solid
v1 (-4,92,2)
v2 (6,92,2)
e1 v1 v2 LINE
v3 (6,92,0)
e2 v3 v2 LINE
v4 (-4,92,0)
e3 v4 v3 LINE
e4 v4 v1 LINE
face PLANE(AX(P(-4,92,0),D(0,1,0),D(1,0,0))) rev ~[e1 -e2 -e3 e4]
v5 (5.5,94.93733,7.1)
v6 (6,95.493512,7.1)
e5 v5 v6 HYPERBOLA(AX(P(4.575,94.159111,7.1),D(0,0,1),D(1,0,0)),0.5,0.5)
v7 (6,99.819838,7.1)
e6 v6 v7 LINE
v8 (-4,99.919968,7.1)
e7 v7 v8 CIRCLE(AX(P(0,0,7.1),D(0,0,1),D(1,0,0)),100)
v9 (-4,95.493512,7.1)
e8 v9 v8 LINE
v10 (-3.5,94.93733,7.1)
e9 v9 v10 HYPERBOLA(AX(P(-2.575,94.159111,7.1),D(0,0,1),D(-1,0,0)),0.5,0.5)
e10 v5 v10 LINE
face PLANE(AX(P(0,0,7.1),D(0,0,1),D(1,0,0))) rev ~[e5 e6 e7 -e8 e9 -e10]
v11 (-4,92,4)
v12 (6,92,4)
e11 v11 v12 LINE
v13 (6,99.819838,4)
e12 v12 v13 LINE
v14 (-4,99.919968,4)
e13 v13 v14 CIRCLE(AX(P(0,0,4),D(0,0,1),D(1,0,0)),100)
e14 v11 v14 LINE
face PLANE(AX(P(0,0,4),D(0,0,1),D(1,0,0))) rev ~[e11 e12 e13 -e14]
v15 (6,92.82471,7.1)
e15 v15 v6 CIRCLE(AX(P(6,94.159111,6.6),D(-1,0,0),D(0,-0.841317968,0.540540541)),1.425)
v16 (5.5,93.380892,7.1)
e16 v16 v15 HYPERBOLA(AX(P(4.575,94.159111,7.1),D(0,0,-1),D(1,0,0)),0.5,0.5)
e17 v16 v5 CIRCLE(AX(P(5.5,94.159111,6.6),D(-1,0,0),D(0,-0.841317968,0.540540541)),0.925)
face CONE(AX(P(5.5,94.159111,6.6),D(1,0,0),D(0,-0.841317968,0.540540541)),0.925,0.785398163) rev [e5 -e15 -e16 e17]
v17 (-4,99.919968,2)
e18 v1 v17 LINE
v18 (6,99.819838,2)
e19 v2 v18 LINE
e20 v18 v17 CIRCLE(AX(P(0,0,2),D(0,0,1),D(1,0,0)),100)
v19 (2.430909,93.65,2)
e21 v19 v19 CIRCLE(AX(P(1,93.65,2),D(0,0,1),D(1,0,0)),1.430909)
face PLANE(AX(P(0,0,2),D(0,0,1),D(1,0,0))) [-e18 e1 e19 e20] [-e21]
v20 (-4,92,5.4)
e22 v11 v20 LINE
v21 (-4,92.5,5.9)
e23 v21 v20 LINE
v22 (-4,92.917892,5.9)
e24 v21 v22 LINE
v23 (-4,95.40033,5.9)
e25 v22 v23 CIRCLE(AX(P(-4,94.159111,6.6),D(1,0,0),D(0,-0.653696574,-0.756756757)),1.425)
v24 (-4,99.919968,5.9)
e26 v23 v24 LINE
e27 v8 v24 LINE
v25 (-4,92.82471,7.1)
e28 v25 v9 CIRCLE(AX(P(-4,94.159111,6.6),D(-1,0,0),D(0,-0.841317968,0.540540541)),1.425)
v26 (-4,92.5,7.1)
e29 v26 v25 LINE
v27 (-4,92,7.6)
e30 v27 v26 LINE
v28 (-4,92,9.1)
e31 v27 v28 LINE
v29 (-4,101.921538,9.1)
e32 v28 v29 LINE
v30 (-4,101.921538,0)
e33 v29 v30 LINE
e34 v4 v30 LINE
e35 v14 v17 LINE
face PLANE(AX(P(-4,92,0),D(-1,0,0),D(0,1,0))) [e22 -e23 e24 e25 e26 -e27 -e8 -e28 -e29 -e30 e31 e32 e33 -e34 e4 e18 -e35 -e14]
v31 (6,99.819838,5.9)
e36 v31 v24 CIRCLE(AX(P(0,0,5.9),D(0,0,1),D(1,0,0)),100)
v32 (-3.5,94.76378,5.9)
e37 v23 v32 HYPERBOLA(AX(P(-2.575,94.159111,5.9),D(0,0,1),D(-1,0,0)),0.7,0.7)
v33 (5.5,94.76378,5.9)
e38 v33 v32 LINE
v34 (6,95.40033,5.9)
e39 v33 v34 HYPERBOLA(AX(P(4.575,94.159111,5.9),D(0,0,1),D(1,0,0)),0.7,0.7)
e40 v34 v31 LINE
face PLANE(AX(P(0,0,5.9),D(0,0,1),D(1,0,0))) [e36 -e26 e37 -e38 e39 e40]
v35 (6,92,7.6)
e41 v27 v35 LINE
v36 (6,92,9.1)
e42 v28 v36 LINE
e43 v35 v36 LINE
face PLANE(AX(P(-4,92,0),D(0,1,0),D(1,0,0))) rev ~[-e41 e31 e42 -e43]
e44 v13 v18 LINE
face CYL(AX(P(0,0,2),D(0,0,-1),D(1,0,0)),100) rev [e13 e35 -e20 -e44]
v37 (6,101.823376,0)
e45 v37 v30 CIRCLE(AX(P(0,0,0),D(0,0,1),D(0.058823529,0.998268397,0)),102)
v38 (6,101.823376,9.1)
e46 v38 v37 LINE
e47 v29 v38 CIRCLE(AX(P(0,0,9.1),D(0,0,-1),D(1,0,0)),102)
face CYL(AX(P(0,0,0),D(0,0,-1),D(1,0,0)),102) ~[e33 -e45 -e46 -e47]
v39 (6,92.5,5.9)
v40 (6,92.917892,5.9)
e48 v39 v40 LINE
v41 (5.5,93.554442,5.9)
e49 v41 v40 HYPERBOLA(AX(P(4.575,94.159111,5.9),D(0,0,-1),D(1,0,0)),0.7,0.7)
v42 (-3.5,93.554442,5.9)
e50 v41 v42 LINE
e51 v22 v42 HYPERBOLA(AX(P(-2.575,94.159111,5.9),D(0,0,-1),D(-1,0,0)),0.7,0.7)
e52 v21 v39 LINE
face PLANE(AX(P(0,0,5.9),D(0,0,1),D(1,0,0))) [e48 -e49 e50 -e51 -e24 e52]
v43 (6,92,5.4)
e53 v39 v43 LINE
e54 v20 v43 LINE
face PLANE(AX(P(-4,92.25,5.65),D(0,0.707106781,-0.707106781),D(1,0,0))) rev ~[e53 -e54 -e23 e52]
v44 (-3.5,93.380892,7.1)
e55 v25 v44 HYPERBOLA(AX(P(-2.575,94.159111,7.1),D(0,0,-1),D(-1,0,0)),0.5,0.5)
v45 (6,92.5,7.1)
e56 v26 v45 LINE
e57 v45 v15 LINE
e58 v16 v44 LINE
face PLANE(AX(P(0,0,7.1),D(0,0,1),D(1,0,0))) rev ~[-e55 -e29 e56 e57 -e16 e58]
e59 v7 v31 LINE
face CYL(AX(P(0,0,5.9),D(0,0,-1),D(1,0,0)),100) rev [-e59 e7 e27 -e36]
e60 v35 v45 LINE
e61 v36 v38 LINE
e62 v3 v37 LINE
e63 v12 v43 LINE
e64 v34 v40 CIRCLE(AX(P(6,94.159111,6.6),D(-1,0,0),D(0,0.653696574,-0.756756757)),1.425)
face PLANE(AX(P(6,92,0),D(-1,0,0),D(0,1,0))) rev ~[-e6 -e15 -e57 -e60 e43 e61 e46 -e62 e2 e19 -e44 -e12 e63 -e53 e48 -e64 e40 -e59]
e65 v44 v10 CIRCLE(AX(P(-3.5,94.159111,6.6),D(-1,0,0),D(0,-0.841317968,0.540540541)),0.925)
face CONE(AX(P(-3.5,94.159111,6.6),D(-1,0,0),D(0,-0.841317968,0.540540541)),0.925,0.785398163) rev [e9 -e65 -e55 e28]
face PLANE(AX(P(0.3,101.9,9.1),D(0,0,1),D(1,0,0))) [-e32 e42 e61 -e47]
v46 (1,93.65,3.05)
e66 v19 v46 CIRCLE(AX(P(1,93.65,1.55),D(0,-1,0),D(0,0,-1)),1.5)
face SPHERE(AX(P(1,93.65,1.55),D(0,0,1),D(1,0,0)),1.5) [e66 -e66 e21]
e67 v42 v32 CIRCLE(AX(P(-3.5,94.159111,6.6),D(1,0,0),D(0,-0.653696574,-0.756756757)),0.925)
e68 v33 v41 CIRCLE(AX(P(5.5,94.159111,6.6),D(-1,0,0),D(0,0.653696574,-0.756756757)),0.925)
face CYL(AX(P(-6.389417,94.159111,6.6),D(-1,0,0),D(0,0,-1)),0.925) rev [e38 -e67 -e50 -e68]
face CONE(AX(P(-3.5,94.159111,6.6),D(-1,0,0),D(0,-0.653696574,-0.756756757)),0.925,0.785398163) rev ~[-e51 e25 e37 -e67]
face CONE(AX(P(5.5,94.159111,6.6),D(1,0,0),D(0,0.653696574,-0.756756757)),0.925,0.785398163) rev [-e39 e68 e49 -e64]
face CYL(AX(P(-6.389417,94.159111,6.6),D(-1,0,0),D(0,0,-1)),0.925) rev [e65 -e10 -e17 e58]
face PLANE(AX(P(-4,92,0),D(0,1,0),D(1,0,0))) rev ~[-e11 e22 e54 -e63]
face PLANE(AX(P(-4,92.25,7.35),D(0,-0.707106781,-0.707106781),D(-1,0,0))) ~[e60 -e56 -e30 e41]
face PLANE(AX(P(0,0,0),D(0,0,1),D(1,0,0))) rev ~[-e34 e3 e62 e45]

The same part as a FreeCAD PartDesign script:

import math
import FreeCAD as App
import Part
import Sketcher
Q = App.Units.Quantity


def edges_at(feature, points):
    """Names of the edges that pass closest to the given points."""
    edges = feature.Shape.Edges
    near = lambda p: min(range(len(edges)), key=lambda i: edges[i].distToShape(Part.Vertex(*p))[0])
    return sorted({f"Edge{near(p) + 1}" for p in points})

doc = App.newDocument("Part")
body = doc.addObject("PartDesign::Body", "Body")

sketch1 = body.newObject("Sketcher::SketchObject", "Sketch")
sketch1.AttachmentSupport = (doc.getObject("XY_Plane"), [""])
sketch1.MapMode = "FlatFace"
sketch1.AttachmentOffset = App.Placement(App.Vector(0, 0, 9.1), App.Rotation())
sketch1.addGeometry(Part.LineSegment(App.Vector(-11, 115, 0), App.Vector(-11, 88, 0)), False)
sketch1.addGeometry(Part.LineSegment(App.Vector(-11, 88, 0), App.Vector(11, 88, 0)), False)
sketch1.addGeometry(Part.LineSegment(App.Vector(11, 88, 0), App.Vector(11, 115, 0)), False)
sketch1.addGeometry(Part.LineSegment(App.Vector(11, 115, 0), App.Vector(-11, 115, 0)), False)
sketch1.addConstraint(Sketcher.Constraint("Coincident", 0, 2, 1, 1))
sketch1.addConstraint(Sketcher.Constraint("Coincident", 1, 2, 2, 1))
sketch1.addConstraint(Sketcher.Constraint("Coincident", 2, 2, 3, 1))
sketch1.addConstraint(Sketcher.Constraint("Coincident", 3, 2, 0, 1))
sketch1.addConstraint(Sketcher.Constraint("Vertical", 0))
sketch1.addConstraint(Sketcher.Constraint("Horizontal", 1))
sketch1.addConstraint(Sketcher.Constraint("Vertical", 2))
sketch1.addConstraint(Sketcher.Constraint("Horizontal", 3))
sketch1.addConstraint(Sketcher.Constraint("DistanceX", 1, 1, 1, 2, Q("22 mm")))
sketch1.addConstraint(Sketcher.Constraint("DistanceY", 0, 2, 0, 1, Q("27 mm")))
sketch1.addConstraint(Sketcher.Constraint("DistanceX", 0, 2, -1, 1, Q("10.7 mm")))
sketch1.addConstraint(Sketcher.Constraint("DistanceY", -1, 1, 0, 2, Q("88.4 mm")))
pad1 = body.newObject("PartDesign::Pad", "Pad")
pad1.Profile = sketch1
pad1.Length = 10
body2 = doc.addObject("PartDesign::Body", "Body001")

sketch2 = body2.newObject("Sketcher::SketchObject", "Sketch001")
sketch2.AttachmentSupport = (doc.getObject("YZ_Plane001"), [""])
sketch2.MapMode = "FlatFace"
sketch2.AttachmentOffset = App.Placement(App.Vector(0, 0, -6.389417), App.Rotation())
sketch2.addGeometry(Part.Circle(App.Vector(94.2, 6.6, 0), App.Vector(0, 0, 1), 0.9), False)
sketch2.addConstraint(Sketcher.Constraint("Diameter", 0, Q("1.85 mm")))
sketch2.addConstraint(Sketcher.Constraint("DistanceY", -1, 1, 0, 3, Q("6.6 mm")))
sketch2.addConstraint(Sketcher.Constraint("DistanceX", -1, 1, 0, 3, Q("94.159111 mm")))
pad2 = body2.newObject("PartDesign::Pad", "Pad001")
pad2.Profile = sketch2
pad2.Length = 21
body3 = doc.addObject("PartDesign::Body", "Body002")

sketch3 = body3.newObject("Sketcher::SketchObject", "Sketch002")
sketch3.AttachmentSupport = (doc.getObject("XY_Plane002"), [""])
sketch3.MapMode = "FlatFace"
sketch3.AttachmentOffset = App.Placement(App.Vector(0, 0, 5.9), App.Rotation())
sketch3.addGeometry(Part.Circle(App.Vector(0, 0, 0), App.Vector(0, 0, 1), 100), False)
sketch3.addConstraint(Sketcher.Constraint("Coincident", 0, 3, -1, 1))
sketch3.addConstraint(Sketcher.Constraint("Diameter", 0, Q("200 mm")))
pad3 = body3.newObject("PartDesign::Pad", "Pad002")
pad3.Profile = sketch3
pad3.Length = 1.2
body4 = doc.addObject("PartDesign::Body", "Body003")

sketch4 = body4.newObject("Sketcher::SketchObject", "Sketch003")
sketch4.AttachmentSupport = (doc.getObject("XY_Plane003"), [""])
sketch4.MapMode = "FlatFace"
sketch4.AttachmentOffset = App.Placement(App.Vector(0, 0, 2), App.Rotation())
sketch4.addGeometry(Part.Circle(App.Vector(0, 0, 0), App.Vector(0, 0, 1), 100), False)
sketch4.addConstraint(Sketcher.Constraint("Coincident", 0, 3, -1, 1))
sketch4.addConstraint(Sketcher.Constraint("Diameter", 0, Q("200 mm")))
pad4 = body4.newObject("PartDesign::Pad", "Pad003")
pad4.Profile = sketch4
pad4.Length = 2
body5 = doc.addObject("PartDesign::Body", "Body004")

sketch5 = body5.newObject("Sketcher::SketchObject", "Sketch004")
sketch5.AttachmentSupport = (doc.getObject("XY_Plane004"), [""])
sketch5.MapMode = "FlatFace"
sketch5.addGeometry(Part.LineSegment(App.Vector(-4, 102, 0), App.Vector(-4, 92, 0)), False)
sketch5.addGeometry(Part.LineSegment(App.Vector(-4, 92, 0), App.Vector(6, 92, 0)), False)
sketch5.addGeometry(Part.LineSegment(App.Vector(6, 92, 0), App.Vector(6, 102, 0)), False)
sketch5.addGeometry(Part.LineSegment(App.Vector(6, 102, 0), App.Vector(-4, 102, 0)), False)
sketch5.addConstraint(Sketcher.Constraint("Coincident", 0, 2, 1, 1))
sketch5.addConstraint(Sketcher.Constraint("Coincident", 1, 2, 2, 1))
sketch5.addConstraint(Sketcher.Constraint("Coincident", 2, 2, 3, 1))
sketch5.addConstraint(Sketcher.Constraint("Coincident", 3, 2, 0, 1))
sketch5.addConstraint(Sketcher.Constraint("Vertical", 0))
sketch5.addConstraint(Sketcher.Constraint("Horizontal", 1))
sketch5.addConstraint(Sketcher.Constraint("Vertical", 2))
sketch5.addConstraint(Sketcher.Constraint("Horizontal", 3))
sketch5.addConstraint(Sketcher.Constraint("Equal", 3, 0))
sketch5.addConstraint(Sketcher.Constraint("DistanceX", 1, 1, 1, 2, Q("10 mm")))
sketch5.addConstraint(Sketcher.Constraint("DistanceX", 0, 2, -1, 1, Q("4 mm")))
sketch5.addConstraint(Sketcher.Constraint("DistanceY", -1, 1, 0, 2, Q("92 mm")))
pad5 = body5.newObject("PartDesign::Pad", "Pad004")
pad5.Profile = sketch5
pad5.Length = 10
body6 = doc.addObject("PartDesign::Body", "Body005")

sketch6 = body6.newObject("Sketcher::SketchObject", "Sketch005")
sketch6.AttachmentSupport = (doc.getObject("XY_Plane005"), [""])
sketch6.MapMode = "FlatFace"
sketch6.addGeometry(Part.Circle(App.Vector(0, 0, 0), App.Vector(0, 0, 1), 102), False)
sketch6.addConstraint(Sketcher.Constraint("Coincident", 0, 3, -1, 1))
sketch6.addConstraint(Sketcher.Constraint("Diameter", 0, Q("204 mm")))
pad6 = body6.newObject("PartDesign::Pad", "Pad005")
pad6.Profile = sketch6
pad6.Length = 10
doc.recompute()

boolean = body6.newObject("PartDesign::Boolean", "Boolean")
boolean.Type = "Common"
boolean.addObjects([body5])
doc.recompute()

boolean2 = body6.newObject("PartDesign::Boolean", "Boolean001")
boolean2.Type = "Cut"
boolean2.addObjects([body4])
doc.recompute()

boolean3 = body6.newObject("PartDesign::Boolean", "Boolean002")
boolean3.Type = "Cut"
boolean3.addObjects([body3])
doc.recompute()

boolean4 = body6.newObject("PartDesign::Boolean", "Boolean003")
boolean4.Type = "Cut"
boolean4.addObjects([body2])
doc.recompute()

boolean5 = body6.newObject("PartDesign::Boolean", "Boolean004")
boolean5.Type = "Cut"
boolean5.addObjects([body])
doc.recompute()

chamfer = body6.newObject("PartDesign::Chamfer", "Chamfer")
chamfer.Base = (boolean5, edges_at(boolean5, [(1, 92, 7.1), (1, 92, 5.9)]))
chamfer.Size = 0.5
doc.recompute()

chamfer2 = body6.newObject("PartDesign::Chamfer", "Chamfer001")
chamfer2.Base = (chamfer, edges_at(chamfer, [
    (-4, 94.159, 5.675),
    (-4, 94.159, 5.675),
    (-4, 94.159, 7.525),
    (6, 94.159, 5.675),
    (6, 94.159, 5.675),
    (6, 94.159, 7.525),
]))
chamfer2.Size = 0.5
body7 = doc.addObject("PartDesign::Body", "Body006")

sketch7 = body7.newObject("Sketcher::SketchObject", "Sketch006")
sketch7.AttachmentSupport = (doc.getObject("XZ_Plane006"), [""])
sketch7.MapMode = "FlatFace"
sketch7.AttachmentOffset = App.Placement(App.Vector(0, 0, -93.65), App.Rotation())
sketch7.addGeometry(Part.ArcOfCircle(Part.Circle(App.Vector(1, 1.6, 0), App.Vector(0, 0, 1), 1.5), math.radians(-90), math.radians(90)), False)
sketch7.addGeometry(Part.LineSegment(App.Vector(1, 3, 0), App.Vector(1, 0.1, 0)), False)
sketch7.addGeometry(Part.LineSegment(App.Vector(1, 0.1, 0), App.Vector(1, 3, 0)), True)
sketch7.addConstraint(Sketcher.Constraint("Coincident", 0, 1, 1, 2))
sketch7.addConstraint(Sketcher.Constraint("Coincident", 1, 1, 0, 2))
sketch7.addConstraint(Sketcher.Constraint("Vertical", 1))
sketch7.addConstraint(Sketcher.Constraint("Vertical", 2))
sketch7.addConstraint(Sketcher.Constraint("Coincident", 2, 1, 0, 1))
sketch7.addConstraint(Sketcher.Constraint("Equal", 1, 2))
sketch7.addConstraint(Sketcher.Constraint("Radius", 0, Q("1.5 mm")))
sketch7.addConstraint(Sketcher.Constraint("DistanceX", -1, 1, 0, 3, Q("1 mm")))
sketch7.addConstraint(Sketcher.Constraint("DistanceX", -1, 1, 0, 1, Q("1 mm")))
sketch7.addConstraint(Sketcher.Constraint("DistanceY", -1, 1, 0, 3, Q("1.55 mm")))
revolution = body7.newObject("PartDesign::Revolution", "Revolution")
revolution.Profile = sketch7
revolution.ReferenceAxis = (sketch7, ["Axis0"])
revolution.Angle = 360
doc.recompute()

boolean6 = body7.newObject("PartDesign::Boolean", "Boolean005")
boolean6.Type = "Fuse"
boolean6.addObjects([body6])

doc.recompute()
